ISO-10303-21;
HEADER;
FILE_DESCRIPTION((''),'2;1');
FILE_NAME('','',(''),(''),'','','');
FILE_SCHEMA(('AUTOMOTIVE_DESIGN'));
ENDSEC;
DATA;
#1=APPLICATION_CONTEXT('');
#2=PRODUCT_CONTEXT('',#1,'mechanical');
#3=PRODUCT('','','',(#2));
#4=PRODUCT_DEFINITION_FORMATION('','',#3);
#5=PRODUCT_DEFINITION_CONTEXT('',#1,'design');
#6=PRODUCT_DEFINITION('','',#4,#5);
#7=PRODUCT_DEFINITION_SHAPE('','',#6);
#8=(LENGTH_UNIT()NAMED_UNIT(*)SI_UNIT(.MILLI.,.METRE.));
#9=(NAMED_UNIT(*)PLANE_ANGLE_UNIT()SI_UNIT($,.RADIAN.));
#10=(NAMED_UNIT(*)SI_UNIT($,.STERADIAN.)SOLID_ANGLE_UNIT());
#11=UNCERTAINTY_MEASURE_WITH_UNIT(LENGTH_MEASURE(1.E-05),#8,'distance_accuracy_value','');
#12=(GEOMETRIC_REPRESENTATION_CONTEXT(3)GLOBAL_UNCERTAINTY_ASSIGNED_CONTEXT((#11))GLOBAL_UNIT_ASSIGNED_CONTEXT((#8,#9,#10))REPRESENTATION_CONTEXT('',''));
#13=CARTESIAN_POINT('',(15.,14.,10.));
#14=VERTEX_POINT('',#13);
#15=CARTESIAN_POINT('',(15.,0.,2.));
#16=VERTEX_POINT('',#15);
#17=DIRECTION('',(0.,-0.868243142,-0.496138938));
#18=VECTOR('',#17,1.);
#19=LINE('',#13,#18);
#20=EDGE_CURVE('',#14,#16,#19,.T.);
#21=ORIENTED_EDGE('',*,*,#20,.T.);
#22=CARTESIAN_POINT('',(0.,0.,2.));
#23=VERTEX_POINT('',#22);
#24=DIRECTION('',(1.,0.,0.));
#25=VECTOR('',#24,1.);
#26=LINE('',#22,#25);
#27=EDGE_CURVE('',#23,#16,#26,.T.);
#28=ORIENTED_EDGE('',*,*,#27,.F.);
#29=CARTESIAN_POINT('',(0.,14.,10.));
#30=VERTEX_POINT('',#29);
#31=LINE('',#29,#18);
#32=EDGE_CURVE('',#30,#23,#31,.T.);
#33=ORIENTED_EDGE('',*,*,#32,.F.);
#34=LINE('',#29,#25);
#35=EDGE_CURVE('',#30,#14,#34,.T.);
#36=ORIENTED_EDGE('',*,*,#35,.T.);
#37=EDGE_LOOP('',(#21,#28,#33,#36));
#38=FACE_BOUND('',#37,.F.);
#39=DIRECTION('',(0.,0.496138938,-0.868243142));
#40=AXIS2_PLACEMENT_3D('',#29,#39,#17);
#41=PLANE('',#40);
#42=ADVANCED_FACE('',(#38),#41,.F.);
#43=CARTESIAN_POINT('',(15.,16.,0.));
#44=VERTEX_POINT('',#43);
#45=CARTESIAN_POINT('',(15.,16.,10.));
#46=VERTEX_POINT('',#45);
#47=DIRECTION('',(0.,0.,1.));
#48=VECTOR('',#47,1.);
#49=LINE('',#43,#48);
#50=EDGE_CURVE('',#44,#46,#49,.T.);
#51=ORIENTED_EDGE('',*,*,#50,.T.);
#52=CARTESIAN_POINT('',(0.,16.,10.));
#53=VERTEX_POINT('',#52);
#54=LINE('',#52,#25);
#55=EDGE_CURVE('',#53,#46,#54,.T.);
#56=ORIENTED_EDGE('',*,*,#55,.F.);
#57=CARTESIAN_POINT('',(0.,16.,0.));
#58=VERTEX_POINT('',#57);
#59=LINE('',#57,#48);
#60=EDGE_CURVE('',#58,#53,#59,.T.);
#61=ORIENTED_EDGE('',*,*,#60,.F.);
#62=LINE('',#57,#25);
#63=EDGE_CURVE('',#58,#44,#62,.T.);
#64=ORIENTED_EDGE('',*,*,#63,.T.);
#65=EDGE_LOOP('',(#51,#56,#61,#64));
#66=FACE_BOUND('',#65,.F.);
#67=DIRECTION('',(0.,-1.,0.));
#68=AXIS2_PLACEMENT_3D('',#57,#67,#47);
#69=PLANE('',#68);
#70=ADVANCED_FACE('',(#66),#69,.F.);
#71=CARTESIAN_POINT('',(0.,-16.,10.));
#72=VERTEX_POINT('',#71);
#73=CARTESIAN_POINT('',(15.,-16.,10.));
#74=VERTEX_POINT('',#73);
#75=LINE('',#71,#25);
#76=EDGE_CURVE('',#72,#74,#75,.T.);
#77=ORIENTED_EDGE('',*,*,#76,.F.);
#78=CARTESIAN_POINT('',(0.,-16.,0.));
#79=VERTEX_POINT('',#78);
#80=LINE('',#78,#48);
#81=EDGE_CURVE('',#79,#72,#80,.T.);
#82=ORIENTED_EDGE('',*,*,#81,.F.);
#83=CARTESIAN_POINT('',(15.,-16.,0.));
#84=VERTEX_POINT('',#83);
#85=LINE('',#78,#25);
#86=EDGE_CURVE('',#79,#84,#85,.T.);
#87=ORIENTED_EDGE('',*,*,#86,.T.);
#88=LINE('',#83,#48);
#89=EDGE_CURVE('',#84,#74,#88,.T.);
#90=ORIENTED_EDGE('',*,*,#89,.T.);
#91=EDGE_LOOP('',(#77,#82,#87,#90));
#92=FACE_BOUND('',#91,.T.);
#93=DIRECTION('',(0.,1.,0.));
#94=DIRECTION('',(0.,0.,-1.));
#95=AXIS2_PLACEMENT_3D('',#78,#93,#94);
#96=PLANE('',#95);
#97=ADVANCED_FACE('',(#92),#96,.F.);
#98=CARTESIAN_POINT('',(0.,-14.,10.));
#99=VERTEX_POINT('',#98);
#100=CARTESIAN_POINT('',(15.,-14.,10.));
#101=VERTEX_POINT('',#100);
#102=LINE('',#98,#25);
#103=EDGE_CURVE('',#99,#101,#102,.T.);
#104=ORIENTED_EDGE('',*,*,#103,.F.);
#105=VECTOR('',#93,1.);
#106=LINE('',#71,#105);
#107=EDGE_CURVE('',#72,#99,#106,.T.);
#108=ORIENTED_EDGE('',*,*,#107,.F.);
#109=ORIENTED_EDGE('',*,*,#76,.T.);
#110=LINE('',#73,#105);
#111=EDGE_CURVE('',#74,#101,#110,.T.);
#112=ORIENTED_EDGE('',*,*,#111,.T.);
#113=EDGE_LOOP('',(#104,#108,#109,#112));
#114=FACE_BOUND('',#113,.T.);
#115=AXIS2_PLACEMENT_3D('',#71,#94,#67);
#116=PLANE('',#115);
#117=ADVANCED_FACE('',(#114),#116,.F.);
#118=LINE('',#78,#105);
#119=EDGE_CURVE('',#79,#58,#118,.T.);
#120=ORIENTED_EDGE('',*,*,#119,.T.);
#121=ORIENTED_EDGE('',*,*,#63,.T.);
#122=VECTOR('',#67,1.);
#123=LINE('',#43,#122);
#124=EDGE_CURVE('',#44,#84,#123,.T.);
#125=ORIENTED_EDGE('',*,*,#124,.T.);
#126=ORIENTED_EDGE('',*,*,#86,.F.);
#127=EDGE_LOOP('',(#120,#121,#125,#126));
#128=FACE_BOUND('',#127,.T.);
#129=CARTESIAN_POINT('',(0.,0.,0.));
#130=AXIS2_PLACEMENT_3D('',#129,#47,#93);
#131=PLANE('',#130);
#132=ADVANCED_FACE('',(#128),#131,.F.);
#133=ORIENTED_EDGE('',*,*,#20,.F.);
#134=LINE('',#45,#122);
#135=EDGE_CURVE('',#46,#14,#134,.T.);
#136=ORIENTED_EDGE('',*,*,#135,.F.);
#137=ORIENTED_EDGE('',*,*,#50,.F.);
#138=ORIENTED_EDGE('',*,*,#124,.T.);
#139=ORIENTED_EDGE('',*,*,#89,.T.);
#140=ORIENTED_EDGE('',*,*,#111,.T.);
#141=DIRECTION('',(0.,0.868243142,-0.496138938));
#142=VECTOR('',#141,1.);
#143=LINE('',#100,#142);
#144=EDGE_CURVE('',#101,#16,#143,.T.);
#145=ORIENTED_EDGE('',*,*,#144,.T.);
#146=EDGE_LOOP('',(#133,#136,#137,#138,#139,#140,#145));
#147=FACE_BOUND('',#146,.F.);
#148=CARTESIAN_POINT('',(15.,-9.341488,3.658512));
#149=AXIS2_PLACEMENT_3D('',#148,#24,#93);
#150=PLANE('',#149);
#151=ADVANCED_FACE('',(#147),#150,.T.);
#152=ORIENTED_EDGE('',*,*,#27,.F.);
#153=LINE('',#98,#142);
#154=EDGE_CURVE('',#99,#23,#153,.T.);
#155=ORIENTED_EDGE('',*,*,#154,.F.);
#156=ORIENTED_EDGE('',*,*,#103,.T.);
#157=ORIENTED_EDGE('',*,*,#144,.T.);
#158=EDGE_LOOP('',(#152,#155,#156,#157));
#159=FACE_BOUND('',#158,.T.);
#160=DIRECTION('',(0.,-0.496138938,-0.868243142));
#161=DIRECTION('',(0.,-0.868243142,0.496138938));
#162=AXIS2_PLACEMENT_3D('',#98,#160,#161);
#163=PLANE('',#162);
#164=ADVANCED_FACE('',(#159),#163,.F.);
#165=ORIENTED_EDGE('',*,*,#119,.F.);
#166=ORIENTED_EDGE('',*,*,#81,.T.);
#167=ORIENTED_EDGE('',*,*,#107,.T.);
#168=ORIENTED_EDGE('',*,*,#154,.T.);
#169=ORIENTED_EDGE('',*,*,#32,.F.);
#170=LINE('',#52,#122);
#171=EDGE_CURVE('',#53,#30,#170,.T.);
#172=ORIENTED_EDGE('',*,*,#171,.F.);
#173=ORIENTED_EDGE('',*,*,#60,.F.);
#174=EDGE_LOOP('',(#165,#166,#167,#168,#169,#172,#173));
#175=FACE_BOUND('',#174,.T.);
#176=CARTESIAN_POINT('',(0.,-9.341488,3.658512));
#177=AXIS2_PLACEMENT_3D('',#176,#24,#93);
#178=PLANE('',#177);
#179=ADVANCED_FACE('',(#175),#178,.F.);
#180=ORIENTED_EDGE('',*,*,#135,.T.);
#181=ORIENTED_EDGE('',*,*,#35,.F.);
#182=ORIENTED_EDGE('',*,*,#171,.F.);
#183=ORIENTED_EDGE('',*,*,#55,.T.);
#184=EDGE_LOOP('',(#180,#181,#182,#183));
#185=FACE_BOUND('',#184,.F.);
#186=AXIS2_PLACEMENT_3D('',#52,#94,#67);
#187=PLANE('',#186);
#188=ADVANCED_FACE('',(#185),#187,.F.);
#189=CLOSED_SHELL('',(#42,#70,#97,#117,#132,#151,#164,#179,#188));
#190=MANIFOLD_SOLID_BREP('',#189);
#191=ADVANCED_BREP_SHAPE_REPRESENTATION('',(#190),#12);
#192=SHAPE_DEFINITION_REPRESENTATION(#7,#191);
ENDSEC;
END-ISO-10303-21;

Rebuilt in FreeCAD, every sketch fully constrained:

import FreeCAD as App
import Part
import Sketcher

V = App.Vector
Q = App.Units.Quantity


def add_polygon(sketch, points):
    """Adds a closed chain of lines whose ends are joined by coincident constraints."""
    first, n = sketch.GeometryCount, len(points)
    for a, b in zip(points, points[1:] + points[:1]):
        sketch.addGeometry(Part.LineSegment(App.Vector(*a, 0), App.Vector(*b, 0)), False)
    for i in range(n):
        sketch.addConstraint(Sketcher.Constraint("Coincident", first + i, 2, first + (i + 1) % n, 1))

doc = App.newDocument("Part")
body = doc.addObject("PartDesign::Body", "Body")

sketch1 = body.newObject("Sketcher::SketchObject", "Sketch")
sketch1.AttachmentSupport = (doc.getObject("YZ_Plane"), [""])
sketch1.MapMode = "FlatFace"
add_polygon(sketch1, [(0, 2), (0, 0), (16, 0), (16, 10), (14, 10)])
sketch1.addConstraint(Sketcher.Constraint("Vertical", 0))
sketch1.addConstraint(Sketcher.Constraint("Horizontal", 1))
sketch1.addConstraint(Sketcher.Constraint("Vertical", 2))
sketch1.addConstraint(Sketcher.Constraint("Horizontal", 3))
sketch1.addConstraint(Sketcher.Constraint("Coincident", 0, 2, -1, 1))
sketch1.addConstraint(Sketcher.Constraint("Equal", 3, 0))
sketch1.addConstraint(Sketcher.Constraint("DistanceX", 1, 1, 1, 2, Q("16 mm")))
sketch1.addConstraint(Sketcher.Constraint("DistanceX", 3, 2, 3, 1, Q("2 mm")))
sketch1.addConstraint(Sketcher.Constraint("DistanceY", 2, 1, 2, 2, Q("10 mm")))
pad1 = body.newObject("PartDesign::Pad", "Pad")
pad1.Profile = sketch1
pad1.Length = 15
body2 = doc.addObject("PartDesign::Body", "Body001")
doc.recompute()

body2.BaseFeature = body
doc.recompute()

mirroring = doc.addObject("Part::Mirroring", "Mirroring")
mirroring.Source = body
mirroring.Base = V(7.5, 0, 1)
mirroring.Normal = V(0, -1, 0)
body3 = doc.addObject("PartDesign::Body", "Body002")
body3.BaseFeature = mirroring
boolean = body2.newObject("PartDesign::Boolean", "Boolean")
boolean.Type = "Fuse"
boolean.addObjects([body3])
doc.recompute()
mirroring.Visibility = False

doc.recompute()
